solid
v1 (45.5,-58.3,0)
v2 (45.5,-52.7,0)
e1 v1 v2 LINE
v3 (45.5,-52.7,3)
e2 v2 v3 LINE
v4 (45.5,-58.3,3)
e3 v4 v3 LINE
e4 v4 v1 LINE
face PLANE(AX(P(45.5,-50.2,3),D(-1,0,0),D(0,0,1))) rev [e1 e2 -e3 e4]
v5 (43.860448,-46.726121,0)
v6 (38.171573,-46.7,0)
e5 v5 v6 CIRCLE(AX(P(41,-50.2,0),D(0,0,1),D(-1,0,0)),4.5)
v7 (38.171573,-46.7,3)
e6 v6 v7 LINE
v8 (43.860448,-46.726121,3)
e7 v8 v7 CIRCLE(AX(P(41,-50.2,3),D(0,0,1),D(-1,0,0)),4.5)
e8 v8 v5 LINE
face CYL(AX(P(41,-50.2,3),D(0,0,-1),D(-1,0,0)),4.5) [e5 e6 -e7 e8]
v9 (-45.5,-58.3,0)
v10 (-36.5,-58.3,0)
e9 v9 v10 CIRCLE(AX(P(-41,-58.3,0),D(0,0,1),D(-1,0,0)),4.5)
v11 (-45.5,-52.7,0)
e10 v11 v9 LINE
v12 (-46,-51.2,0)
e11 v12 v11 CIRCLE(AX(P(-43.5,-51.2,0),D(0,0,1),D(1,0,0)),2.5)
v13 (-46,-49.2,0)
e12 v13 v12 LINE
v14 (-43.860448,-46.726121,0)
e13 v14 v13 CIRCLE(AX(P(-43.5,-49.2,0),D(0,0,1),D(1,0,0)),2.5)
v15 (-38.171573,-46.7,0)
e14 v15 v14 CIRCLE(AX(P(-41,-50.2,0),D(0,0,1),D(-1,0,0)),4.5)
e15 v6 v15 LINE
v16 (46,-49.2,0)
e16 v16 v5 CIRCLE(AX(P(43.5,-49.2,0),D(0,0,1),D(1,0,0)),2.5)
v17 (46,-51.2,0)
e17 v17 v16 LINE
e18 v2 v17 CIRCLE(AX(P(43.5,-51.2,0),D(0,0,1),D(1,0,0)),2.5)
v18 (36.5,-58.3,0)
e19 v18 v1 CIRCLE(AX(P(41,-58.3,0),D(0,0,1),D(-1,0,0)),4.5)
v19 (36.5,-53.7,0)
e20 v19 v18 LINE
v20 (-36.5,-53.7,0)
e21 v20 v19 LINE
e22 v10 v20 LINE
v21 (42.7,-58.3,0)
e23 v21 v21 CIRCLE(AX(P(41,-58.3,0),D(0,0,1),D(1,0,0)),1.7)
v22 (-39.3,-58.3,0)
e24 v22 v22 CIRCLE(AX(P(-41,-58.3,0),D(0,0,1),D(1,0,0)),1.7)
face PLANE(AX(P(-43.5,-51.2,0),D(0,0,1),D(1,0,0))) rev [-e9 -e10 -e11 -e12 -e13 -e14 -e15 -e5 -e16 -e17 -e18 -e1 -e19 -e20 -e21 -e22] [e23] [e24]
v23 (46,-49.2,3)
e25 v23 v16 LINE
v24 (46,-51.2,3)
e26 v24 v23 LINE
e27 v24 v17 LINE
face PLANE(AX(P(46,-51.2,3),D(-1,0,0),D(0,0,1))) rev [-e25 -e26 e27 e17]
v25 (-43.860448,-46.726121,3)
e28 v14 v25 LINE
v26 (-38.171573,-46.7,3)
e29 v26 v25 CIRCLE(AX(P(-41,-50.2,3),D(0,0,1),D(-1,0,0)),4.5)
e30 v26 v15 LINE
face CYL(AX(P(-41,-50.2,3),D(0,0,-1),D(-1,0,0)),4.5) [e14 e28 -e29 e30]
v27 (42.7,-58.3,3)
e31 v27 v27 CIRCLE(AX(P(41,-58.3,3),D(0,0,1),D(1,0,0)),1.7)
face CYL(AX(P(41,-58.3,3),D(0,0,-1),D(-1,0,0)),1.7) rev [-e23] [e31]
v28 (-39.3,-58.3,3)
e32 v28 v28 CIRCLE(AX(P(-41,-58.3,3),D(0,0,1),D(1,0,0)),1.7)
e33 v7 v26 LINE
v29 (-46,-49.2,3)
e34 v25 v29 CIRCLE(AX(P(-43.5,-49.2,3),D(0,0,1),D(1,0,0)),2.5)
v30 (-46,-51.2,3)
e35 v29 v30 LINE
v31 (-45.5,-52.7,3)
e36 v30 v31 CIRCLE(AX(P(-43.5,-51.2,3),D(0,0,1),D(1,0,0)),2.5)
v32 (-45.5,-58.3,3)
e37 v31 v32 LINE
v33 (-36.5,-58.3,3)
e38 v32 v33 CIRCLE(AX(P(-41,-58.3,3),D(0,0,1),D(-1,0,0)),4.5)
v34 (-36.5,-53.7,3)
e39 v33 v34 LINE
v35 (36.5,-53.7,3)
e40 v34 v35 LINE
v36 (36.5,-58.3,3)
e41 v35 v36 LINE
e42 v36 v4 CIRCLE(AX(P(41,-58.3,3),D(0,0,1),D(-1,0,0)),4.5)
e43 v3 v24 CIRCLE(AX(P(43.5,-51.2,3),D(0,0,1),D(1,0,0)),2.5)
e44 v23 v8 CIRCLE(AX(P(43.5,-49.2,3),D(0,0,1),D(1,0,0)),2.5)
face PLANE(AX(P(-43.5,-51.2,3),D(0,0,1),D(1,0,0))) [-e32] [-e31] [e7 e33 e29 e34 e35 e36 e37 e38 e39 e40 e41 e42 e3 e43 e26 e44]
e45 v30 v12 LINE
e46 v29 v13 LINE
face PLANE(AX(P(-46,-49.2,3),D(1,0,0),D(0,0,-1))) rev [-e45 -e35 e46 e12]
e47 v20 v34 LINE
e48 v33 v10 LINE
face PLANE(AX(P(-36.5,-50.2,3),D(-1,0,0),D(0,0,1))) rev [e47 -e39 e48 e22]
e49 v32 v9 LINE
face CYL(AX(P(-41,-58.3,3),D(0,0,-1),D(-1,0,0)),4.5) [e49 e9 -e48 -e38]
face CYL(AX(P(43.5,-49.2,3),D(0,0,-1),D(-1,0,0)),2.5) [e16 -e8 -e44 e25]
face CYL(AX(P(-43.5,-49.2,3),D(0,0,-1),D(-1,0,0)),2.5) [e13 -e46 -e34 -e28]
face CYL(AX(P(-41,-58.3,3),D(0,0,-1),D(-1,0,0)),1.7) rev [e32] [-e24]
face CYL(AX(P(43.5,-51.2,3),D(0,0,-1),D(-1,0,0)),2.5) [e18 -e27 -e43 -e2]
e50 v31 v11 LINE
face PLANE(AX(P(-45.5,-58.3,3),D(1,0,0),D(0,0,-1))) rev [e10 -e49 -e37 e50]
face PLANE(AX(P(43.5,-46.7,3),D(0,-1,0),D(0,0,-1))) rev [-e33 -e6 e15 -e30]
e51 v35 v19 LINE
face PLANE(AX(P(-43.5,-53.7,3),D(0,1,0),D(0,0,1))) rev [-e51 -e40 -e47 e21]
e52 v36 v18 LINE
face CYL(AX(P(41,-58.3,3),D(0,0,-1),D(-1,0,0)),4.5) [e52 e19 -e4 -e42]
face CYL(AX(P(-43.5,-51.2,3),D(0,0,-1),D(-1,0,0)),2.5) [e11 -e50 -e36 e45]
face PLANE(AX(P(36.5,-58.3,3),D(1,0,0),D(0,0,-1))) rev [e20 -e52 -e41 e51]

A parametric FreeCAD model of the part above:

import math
import FreeCAD as App
import Part
import Sketcher
from FreeCAD import Vector

doc = App.newDocument("Part")
body = doc.addObject("PartDesign::Body", "Body")

# Sketch on XY plane
sketch1 = body.newObject("Sketcher::SketchObject", "Sketch")
sketch1.AttachmentSupport = (doc.getObject("XY_Plane"), [""])
sketch1.MapMode = "FlatFace"
sketch1.addGeometry(Part.LineSegment(Vector(-43.5, -53.7, 0), Vector(43.5, -53.7, 0)), False)
sketch1.addGeometry(Part.ArcOfCircle(Part.Circle(Vector(43.5, -51.2, 0), Vector(0, 0, 1), 2.5), math.radians(-90), math.radians(0)), False)
sketch1.addGeometry(Part.LineSegment(Vector(46, -51.2, 0), Vector(46, -49.2, 0)), False)
sketch1.addGeometry(Part.ArcOfCircle(Part.Circle(Vector(43.5, -49.2, 0), Vector(0, 0, 1), 2.5), math.radians(0), math.radians(90)), False)
sketch1.addGeometry(Part.LineSegment(Vector(43.5, -46.7, 0), Vector(-43.5, -46.7, 0)), False)
sketch1.addGeometry(Part.ArcOfCircle(Part.Circle(Vector(-43.5, -49.2, 0), Vector(0, 0, 1), 2.5), math.radians(90), math.radians(180)), False)
sketch1.addGeometry(Part.LineSegment(Vector(-46, -49.2, 0), Vector(-46, -51.2, 0)), False)
sketch1.addGeometry(Part.ArcOfCircle(Part.Circle(Vector(-43.5, -51.2, 0), Vector(0, 0, 1), 2.5), math.radians(180), math.radians(270)), False)
sketch1.addConstraint(Sketcher.Constraint("Tangent", 0, 2, 1, 1))
sketch1.addConstraint(Sketcher.Constraint("Tangent", 1, 2, 2, 1))
sketch1.addConstraint(Sketcher.Constraint("Tangent", 2, 2, 3, 1))
sketch1.addConstraint(Sketcher.Constraint("Tangent", 3, 2, 4, 1))
sketch1.addConstraint(Sketcher.Constraint("Tangent", 4, 2, 5, 1))
sketch1.addConstraint(Sketcher.Constraint("Tangent", 5, 2, 6, 1))
sketch1.addConstraint(Sketcher.Constraint("Tangent", 6, 2, 7, 1))
sketch1.addConstraint(Sketcher.Constraint("Tangent", 7, 2, 0, 1))
sketch1.addConstraint(Sketcher.Constraint("Horizontal", 0))
sketch1.addConstraint(Sketcher.Constraint("Vertical", 2))
sketch1.addConstraint(Sketcher.Constraint("Horizontal", 4))
sketch1.addConstraint(Sketcher.Constraint("Vertical", 6))
sketch1.addConstraint(Sketcher.Constraint("Equal", 1, 3))
sketch1.addConstraint(Sketcher.Constraint("Equal", 3, 5))
sketch1.addConstraint(Sketcher.Constraint("Equal", 5, 7))
sketch1.addConstraint(Sketcher.Constraint("Radius", 1, 2.5))
sketch1.addConstraint(Sketcher.Constraint("DistanceX", 0, 1, 0, 2, 87.0))
sketch1.addConstraint(Sketcher.Constraint("DistanceY", 2, 1, 2, 2, 2.0))
sketch1.addConstraint(Sketcher.Constraint("DistanceX", -1, 1, 1, 2, 46.0))
sketch1.addConstraint(Sketcher.Constraint("DistanceY", 1, 3, -1, 1, 51.2))
pad1 = body.newObject("PartDesign::Pad", "Pad")
pad1.Profile = sketch1
pad1.Length = 3

# Sketch on XY plane
sketch2 = body.newObject("Sketcher::SketchObject", "Sketch001")
sketch2.AttachmentSupport = (doc.getObject("XY_Plane"), [""])
sketch2.MapMode = "FlatFace"
sketch2.addGeometry(Part.LineSegment(Vector(-45.5, -50.2, 0), Vector(-45.5, -58.3, 0)), False)
sketch2.addGeometry(Part.ArcOfCircle(Part.Circle(Vector(-41, -58.3, 0), Vector(0, 0, 1), 4.5), math.radians(180), math.radians(360)), False)
sketch2.addGeometry(Part.LineSegment(Vector(-36.5, -58.3, 0), Vector(-36.5, -50.2, 0)), False)
sketch2.addGeometry(Part.ArcOfCircle(Part.Circle(Vector(-41, -50.2, 0), Vector(0, 0, 1), 4.5), math.radians(0), math.radians(180)), False)
sketch2.addGeometry(Part.Circle(Vector(-41, -58.3, 0), Vector(0, 0, 1), 1.7), False)
sketch2.addConstraint(Sketcher.Constraint("Tangent", 0, 2, 1, 1))
sketch2.addConstraint(Sketcher.Constraint("Tangent", 1, 2, 2, 1))
sketch2.addConstraint(Sketcher.Constraint("Tangent", 2, 2, 3, 1))
sketch2.addConstraint(Sketcher.Constraint("Tangent", 3, 2, 0, 1))
sketch2.addConstraint(Sketcher.Constraint("Vertical", 0))
sketch2.addConstraint(Sketcher.Constraint("Vertical", 2))
sketch2.addConstraint(Sketcher.Constraint("Coincident", 4, 3, 1, 3))
sketch2.addConstraint(Sketcher.Constraint("Diameter", 4, 3.4))
sketch2.addConstraint(Sketcher.Constraint("Radius", 1, 4.5))
sketch2.addConstraint(Sketcher.Constraint("DistanceY", 0, 2, 0, 1, 8.1))
sketch2.addConstraint(Sketcher.Constraint("DistanceX", 1, 3, -1, 1, 41.0))
sketch2.addConstraint(Sketcher.Constraint("DistanceY", 1, 3, -1, 1, 58.3))
pad2 = body.newObject("PartDesign::Pad", "Pad001")
pad2.Profile = sketch2
pad2.Length = 3

# Sketch on XY plane
sketch3 = body.newObject("Sketcher::SketchObject", "Sketch002")
sketch3.AttachmentSupport = (doc.getObject("XY_Plane"), [""])
sketch3.MapMode = "FlatFace"
sketch3.addGeometry(Part.LineSegment(Vector(36.5, -50.2, 0), Vector(36.5, -58.3, 0)), False)
sketch3.addGeometry(Part.ArcOfCircle(Part.Circle(Vector(41, -58.3, 0), Vector(0, 0, 1), 4.5), math.radians(180), math.radians(360)), False)
sketch3.addGeometry(Part.LineSegment(Vector(45.5, -58.3, 0), Vector(45.5, -50.2, 0)), False)
sketch3.addGeometry(Part.ArcOfCircle(Part.Circle(Vector(41, -50.2, 0), Vector(0, 0, 1), 4.5), math.radians(0), math.radians(180)), False)
sketch3.addGeometry(Part.Circle(Vector(41, -58.3, 0), Vector(0, 0, 1), 1.7), False)
sketch3.addConstraint(Sketcher.Constraint("Tangent", 0, 2, 1, 1))
sketch3.addConstraint(Sketcher.Constraint("Tangent", 1, 2, 2, 1))
sketch3.addConstraint(Sketcher.Constraint("Tangent", 2, 2, 3, 1))
sketch3.addConstraint(Sketcher.Constraint("Tangent", 3, 2, 0, 1))
sketch3.addConstraint(Sketcher.Constraint("Vertical", 0))
sketch3.addConstraint(Sketcher.Constraint("Vertical", 2))
sketch3.addConstraint(Sketcher.Constraint("Coincident", 4, 3, 1, 3))
sketch3.addConstraint(Sketcher.Constraint("Diameter", 4, 3.4))
sketch3.addConstraint(Sketcher.Constraint("Radius", 1, 4.5))
sketch3.addConstraint(Sketcher.Constraint("DistanceY", 0, 2, 0, 1, 8.1))
sketch3.addConstraint(Sketcher.Constraint("DistanceX", -1, 1, 1, 3, 41.0))
sketch3.addConstraint(Sketcher.Constraint("DistanceY", 1, 3, -1, 1, 58.3))
pad3 = body.newObject("PartDesign::Pad", "Pad002")
pad3.Profile = sketch3
pad3.Length = 3

doc.recompute()
